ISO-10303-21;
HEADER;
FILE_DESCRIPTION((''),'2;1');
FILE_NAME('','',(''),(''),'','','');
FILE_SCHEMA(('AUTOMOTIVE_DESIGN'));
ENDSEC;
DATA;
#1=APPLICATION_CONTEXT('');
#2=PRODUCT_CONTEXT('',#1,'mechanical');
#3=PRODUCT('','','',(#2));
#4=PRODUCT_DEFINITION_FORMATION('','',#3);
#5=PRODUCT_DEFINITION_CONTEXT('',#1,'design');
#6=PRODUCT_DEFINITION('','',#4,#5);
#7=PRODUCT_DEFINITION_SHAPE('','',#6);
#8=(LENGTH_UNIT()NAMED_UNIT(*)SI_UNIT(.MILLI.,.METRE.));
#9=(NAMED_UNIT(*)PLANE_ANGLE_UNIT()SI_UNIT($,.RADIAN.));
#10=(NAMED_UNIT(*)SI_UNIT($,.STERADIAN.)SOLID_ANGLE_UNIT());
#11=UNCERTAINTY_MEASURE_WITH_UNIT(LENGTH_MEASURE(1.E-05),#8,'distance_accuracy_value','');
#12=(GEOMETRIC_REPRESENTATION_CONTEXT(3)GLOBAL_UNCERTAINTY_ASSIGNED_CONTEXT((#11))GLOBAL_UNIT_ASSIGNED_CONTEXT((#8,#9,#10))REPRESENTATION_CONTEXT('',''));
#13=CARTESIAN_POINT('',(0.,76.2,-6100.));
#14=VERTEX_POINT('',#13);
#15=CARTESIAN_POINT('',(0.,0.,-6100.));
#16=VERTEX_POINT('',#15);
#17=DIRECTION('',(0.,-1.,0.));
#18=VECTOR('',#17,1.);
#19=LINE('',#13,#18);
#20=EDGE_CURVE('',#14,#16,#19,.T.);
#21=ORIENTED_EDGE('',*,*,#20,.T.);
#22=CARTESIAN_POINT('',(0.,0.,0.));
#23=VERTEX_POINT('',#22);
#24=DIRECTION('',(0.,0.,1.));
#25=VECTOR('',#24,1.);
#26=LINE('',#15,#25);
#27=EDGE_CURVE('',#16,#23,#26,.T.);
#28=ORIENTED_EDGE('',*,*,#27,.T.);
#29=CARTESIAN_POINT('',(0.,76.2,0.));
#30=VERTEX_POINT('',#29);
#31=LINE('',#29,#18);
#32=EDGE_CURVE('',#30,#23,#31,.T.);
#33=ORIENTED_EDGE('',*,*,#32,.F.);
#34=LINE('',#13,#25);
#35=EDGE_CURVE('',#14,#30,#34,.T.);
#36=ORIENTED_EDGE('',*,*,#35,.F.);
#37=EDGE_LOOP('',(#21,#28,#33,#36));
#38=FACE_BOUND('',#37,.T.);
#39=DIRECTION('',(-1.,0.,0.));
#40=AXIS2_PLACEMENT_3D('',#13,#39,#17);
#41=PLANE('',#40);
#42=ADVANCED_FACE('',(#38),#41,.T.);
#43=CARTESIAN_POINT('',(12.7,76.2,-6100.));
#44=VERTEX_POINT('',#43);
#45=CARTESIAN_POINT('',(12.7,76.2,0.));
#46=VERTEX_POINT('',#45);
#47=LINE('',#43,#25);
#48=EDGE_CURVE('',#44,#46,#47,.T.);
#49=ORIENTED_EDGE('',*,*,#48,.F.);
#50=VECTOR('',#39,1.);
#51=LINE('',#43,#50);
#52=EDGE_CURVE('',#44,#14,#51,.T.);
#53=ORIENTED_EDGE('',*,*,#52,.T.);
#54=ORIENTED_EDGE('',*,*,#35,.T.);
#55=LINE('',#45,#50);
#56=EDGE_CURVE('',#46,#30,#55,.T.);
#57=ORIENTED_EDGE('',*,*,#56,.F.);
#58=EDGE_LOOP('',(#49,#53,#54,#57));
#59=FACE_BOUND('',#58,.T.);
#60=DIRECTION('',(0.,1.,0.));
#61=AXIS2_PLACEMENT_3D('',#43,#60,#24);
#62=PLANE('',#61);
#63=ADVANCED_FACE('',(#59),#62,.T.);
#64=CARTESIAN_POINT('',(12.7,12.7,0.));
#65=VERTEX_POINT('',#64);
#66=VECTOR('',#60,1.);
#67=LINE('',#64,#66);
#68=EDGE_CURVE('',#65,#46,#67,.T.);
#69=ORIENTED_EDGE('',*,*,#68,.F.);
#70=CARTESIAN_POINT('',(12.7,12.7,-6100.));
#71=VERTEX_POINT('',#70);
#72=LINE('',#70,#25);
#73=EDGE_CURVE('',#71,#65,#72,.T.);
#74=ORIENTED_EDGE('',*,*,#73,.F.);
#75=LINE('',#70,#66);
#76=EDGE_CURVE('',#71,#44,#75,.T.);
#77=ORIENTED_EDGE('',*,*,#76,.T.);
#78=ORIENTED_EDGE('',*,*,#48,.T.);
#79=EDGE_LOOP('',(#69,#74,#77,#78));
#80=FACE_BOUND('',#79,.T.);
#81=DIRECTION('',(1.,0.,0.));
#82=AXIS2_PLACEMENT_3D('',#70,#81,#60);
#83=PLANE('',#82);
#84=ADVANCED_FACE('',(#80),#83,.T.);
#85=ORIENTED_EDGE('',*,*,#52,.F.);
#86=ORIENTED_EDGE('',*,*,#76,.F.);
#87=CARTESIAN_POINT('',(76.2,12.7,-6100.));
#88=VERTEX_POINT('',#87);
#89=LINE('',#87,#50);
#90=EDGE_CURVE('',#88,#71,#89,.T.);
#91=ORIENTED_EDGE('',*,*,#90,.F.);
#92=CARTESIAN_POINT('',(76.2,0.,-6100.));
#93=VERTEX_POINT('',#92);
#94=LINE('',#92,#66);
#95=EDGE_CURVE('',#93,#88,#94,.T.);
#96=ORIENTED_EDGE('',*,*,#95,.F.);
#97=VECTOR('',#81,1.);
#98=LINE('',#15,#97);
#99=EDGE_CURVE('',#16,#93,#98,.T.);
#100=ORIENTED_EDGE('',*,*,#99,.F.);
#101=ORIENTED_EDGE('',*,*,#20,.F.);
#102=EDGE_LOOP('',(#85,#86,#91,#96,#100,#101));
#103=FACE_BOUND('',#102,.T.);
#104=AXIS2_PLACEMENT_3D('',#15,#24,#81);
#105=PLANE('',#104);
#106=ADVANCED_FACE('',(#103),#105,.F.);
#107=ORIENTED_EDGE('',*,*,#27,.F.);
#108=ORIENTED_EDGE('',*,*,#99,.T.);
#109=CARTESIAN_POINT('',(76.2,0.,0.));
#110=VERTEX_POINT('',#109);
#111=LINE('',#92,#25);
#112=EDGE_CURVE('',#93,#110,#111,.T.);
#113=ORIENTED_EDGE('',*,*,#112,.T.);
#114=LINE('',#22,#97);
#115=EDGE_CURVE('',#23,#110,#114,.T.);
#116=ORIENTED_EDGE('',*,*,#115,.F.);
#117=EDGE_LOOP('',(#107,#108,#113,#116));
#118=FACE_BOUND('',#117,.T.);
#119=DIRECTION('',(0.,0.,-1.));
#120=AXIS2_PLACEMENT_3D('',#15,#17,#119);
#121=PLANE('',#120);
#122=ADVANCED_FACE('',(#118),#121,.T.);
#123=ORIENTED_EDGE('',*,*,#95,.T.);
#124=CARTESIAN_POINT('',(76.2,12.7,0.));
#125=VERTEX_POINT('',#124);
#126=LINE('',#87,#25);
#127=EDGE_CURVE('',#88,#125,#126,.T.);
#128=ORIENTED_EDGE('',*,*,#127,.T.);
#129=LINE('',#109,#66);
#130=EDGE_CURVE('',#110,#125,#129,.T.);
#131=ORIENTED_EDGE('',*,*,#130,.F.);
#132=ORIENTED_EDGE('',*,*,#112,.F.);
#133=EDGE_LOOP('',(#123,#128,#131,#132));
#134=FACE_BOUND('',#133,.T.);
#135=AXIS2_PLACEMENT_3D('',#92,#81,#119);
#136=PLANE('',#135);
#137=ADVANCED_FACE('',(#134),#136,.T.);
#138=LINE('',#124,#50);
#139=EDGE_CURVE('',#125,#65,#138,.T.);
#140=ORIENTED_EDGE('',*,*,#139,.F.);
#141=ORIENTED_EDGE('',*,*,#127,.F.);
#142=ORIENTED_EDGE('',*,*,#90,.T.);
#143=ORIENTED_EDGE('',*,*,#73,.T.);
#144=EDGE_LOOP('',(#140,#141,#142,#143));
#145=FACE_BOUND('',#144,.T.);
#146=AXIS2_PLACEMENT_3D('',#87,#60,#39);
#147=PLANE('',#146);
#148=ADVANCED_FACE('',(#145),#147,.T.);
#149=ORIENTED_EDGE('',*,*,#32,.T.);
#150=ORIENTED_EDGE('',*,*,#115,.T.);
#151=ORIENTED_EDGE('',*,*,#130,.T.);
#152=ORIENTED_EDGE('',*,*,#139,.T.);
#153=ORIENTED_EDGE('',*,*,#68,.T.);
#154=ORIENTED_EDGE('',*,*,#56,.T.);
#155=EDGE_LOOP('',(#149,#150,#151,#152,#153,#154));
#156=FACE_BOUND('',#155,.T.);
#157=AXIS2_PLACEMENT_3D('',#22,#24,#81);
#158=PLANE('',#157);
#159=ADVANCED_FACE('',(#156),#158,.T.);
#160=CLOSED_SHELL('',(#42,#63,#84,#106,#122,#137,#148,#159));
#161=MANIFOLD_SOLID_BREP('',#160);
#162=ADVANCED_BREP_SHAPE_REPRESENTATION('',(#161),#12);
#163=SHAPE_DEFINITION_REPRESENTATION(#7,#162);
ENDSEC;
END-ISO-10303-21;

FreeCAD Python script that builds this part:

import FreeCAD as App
import Part
import Sketcher
Q = App.Units.Quantity

doc = App.newDocument("Part")
params = doc.addObject("Spreadsheet::Sheet", "Params")
for row, (alias, value) in enumerate([
    ("sketch1_width", "3 in"),
    ("sketch1_width2", "2.5 in"),
    ("pad1_length", "6100 mm"),
], start=1):
    params.set(f"A{row}", alias)
    params.set(f"B{row}", "=" + value)
    params.setAlias(f"B{row}", alias)

body = doc.addObject("PartDesign::Body", "Body")

# Sketch on XY plane
sketch1 = body.newObject("Sketcher::SketchObject", "Sketch")
sketch1.AttachmentSupport = (doc.getObject("XY_Plane"), [""])
sketch1.MapMode = "FlatFace"
sketch1.addGeometry([
    Part.LineSegment(App.Vector(0, 76, 0), App.Vector(0, 0, 0)),  # 0
    Part.LineSegment(App.Vector(0, 0, 0), App.Vector(76, 0, 0)),  # 1
    Part.LineSegment(App.Vector(76, 0, 0), App.Vector(76, 13, 0)),  # 2
    Part.LineSegment(App.Vector(76, 13, 0), App.Vector(13, 13, 0)),  # 3
    Part.LineSegment(App.Vector(13, 13, 0), App.Vector(13, 76, 0)),  # 4
    Part.LineSegment(App.Vector(13, 76, 0), App.Vector(0, 76, 0)),  # 5
], False)
sketch1.addConstraint([
    Sketcher.Constraint("Coincident", 0, 2, 1, 1),
    Sketcher.Constraint("Coincident", 1, 2, 2, 1),
    Sketcher.Constraint("Coincident", 2, 2, 3, 1),
    Sketcher.Constraint("Coincident", 3, 2, 4, 1),
    Sketcher.Constraint("Coincident", 4, 2, 5, 1),
    Sketcher.Constraint("Coincident", 5, 2, 0, 1),
    Sketcher.Constraint("Vertical", 0),
    Sketcher.Constraint("Horizontal", 1),
    Sketcher.Constraint("Vertical", 2),
    Sketcher.Constraint("Horizontal", 3),
    Sketcher.Constraint("Vertical", 4),
    Sketcher.Constraint("Horizontal", 5),
    Sketcher.Constraint("Coincident", 0, 2, -1, 1),
    Sketcher.Constraint("Equal", 1, 0),
    Sketcher.Constraint("Equal", 5, 2),
    Sketcher.Constraint("DistanceX", 1, 1, 1, 2, Q("3 in")),
    Sketcher.Constraint("DistanceX", 3, 2, 3, 1, Q("2.5 in")),
])
sketch1.setExpression("Constraints[15]", "Params.sketch1_width")
sketch1.setExpression("Constraints[16]", "Params.sketch1_width2")
pad1 = body.newObject("PartDesign::Pad", "Pad")
pad1.Profile = sketch1
pad1.setExpression("Length", "Params.pad1_length")
pad1.Reversed = True

doc.recompute()
